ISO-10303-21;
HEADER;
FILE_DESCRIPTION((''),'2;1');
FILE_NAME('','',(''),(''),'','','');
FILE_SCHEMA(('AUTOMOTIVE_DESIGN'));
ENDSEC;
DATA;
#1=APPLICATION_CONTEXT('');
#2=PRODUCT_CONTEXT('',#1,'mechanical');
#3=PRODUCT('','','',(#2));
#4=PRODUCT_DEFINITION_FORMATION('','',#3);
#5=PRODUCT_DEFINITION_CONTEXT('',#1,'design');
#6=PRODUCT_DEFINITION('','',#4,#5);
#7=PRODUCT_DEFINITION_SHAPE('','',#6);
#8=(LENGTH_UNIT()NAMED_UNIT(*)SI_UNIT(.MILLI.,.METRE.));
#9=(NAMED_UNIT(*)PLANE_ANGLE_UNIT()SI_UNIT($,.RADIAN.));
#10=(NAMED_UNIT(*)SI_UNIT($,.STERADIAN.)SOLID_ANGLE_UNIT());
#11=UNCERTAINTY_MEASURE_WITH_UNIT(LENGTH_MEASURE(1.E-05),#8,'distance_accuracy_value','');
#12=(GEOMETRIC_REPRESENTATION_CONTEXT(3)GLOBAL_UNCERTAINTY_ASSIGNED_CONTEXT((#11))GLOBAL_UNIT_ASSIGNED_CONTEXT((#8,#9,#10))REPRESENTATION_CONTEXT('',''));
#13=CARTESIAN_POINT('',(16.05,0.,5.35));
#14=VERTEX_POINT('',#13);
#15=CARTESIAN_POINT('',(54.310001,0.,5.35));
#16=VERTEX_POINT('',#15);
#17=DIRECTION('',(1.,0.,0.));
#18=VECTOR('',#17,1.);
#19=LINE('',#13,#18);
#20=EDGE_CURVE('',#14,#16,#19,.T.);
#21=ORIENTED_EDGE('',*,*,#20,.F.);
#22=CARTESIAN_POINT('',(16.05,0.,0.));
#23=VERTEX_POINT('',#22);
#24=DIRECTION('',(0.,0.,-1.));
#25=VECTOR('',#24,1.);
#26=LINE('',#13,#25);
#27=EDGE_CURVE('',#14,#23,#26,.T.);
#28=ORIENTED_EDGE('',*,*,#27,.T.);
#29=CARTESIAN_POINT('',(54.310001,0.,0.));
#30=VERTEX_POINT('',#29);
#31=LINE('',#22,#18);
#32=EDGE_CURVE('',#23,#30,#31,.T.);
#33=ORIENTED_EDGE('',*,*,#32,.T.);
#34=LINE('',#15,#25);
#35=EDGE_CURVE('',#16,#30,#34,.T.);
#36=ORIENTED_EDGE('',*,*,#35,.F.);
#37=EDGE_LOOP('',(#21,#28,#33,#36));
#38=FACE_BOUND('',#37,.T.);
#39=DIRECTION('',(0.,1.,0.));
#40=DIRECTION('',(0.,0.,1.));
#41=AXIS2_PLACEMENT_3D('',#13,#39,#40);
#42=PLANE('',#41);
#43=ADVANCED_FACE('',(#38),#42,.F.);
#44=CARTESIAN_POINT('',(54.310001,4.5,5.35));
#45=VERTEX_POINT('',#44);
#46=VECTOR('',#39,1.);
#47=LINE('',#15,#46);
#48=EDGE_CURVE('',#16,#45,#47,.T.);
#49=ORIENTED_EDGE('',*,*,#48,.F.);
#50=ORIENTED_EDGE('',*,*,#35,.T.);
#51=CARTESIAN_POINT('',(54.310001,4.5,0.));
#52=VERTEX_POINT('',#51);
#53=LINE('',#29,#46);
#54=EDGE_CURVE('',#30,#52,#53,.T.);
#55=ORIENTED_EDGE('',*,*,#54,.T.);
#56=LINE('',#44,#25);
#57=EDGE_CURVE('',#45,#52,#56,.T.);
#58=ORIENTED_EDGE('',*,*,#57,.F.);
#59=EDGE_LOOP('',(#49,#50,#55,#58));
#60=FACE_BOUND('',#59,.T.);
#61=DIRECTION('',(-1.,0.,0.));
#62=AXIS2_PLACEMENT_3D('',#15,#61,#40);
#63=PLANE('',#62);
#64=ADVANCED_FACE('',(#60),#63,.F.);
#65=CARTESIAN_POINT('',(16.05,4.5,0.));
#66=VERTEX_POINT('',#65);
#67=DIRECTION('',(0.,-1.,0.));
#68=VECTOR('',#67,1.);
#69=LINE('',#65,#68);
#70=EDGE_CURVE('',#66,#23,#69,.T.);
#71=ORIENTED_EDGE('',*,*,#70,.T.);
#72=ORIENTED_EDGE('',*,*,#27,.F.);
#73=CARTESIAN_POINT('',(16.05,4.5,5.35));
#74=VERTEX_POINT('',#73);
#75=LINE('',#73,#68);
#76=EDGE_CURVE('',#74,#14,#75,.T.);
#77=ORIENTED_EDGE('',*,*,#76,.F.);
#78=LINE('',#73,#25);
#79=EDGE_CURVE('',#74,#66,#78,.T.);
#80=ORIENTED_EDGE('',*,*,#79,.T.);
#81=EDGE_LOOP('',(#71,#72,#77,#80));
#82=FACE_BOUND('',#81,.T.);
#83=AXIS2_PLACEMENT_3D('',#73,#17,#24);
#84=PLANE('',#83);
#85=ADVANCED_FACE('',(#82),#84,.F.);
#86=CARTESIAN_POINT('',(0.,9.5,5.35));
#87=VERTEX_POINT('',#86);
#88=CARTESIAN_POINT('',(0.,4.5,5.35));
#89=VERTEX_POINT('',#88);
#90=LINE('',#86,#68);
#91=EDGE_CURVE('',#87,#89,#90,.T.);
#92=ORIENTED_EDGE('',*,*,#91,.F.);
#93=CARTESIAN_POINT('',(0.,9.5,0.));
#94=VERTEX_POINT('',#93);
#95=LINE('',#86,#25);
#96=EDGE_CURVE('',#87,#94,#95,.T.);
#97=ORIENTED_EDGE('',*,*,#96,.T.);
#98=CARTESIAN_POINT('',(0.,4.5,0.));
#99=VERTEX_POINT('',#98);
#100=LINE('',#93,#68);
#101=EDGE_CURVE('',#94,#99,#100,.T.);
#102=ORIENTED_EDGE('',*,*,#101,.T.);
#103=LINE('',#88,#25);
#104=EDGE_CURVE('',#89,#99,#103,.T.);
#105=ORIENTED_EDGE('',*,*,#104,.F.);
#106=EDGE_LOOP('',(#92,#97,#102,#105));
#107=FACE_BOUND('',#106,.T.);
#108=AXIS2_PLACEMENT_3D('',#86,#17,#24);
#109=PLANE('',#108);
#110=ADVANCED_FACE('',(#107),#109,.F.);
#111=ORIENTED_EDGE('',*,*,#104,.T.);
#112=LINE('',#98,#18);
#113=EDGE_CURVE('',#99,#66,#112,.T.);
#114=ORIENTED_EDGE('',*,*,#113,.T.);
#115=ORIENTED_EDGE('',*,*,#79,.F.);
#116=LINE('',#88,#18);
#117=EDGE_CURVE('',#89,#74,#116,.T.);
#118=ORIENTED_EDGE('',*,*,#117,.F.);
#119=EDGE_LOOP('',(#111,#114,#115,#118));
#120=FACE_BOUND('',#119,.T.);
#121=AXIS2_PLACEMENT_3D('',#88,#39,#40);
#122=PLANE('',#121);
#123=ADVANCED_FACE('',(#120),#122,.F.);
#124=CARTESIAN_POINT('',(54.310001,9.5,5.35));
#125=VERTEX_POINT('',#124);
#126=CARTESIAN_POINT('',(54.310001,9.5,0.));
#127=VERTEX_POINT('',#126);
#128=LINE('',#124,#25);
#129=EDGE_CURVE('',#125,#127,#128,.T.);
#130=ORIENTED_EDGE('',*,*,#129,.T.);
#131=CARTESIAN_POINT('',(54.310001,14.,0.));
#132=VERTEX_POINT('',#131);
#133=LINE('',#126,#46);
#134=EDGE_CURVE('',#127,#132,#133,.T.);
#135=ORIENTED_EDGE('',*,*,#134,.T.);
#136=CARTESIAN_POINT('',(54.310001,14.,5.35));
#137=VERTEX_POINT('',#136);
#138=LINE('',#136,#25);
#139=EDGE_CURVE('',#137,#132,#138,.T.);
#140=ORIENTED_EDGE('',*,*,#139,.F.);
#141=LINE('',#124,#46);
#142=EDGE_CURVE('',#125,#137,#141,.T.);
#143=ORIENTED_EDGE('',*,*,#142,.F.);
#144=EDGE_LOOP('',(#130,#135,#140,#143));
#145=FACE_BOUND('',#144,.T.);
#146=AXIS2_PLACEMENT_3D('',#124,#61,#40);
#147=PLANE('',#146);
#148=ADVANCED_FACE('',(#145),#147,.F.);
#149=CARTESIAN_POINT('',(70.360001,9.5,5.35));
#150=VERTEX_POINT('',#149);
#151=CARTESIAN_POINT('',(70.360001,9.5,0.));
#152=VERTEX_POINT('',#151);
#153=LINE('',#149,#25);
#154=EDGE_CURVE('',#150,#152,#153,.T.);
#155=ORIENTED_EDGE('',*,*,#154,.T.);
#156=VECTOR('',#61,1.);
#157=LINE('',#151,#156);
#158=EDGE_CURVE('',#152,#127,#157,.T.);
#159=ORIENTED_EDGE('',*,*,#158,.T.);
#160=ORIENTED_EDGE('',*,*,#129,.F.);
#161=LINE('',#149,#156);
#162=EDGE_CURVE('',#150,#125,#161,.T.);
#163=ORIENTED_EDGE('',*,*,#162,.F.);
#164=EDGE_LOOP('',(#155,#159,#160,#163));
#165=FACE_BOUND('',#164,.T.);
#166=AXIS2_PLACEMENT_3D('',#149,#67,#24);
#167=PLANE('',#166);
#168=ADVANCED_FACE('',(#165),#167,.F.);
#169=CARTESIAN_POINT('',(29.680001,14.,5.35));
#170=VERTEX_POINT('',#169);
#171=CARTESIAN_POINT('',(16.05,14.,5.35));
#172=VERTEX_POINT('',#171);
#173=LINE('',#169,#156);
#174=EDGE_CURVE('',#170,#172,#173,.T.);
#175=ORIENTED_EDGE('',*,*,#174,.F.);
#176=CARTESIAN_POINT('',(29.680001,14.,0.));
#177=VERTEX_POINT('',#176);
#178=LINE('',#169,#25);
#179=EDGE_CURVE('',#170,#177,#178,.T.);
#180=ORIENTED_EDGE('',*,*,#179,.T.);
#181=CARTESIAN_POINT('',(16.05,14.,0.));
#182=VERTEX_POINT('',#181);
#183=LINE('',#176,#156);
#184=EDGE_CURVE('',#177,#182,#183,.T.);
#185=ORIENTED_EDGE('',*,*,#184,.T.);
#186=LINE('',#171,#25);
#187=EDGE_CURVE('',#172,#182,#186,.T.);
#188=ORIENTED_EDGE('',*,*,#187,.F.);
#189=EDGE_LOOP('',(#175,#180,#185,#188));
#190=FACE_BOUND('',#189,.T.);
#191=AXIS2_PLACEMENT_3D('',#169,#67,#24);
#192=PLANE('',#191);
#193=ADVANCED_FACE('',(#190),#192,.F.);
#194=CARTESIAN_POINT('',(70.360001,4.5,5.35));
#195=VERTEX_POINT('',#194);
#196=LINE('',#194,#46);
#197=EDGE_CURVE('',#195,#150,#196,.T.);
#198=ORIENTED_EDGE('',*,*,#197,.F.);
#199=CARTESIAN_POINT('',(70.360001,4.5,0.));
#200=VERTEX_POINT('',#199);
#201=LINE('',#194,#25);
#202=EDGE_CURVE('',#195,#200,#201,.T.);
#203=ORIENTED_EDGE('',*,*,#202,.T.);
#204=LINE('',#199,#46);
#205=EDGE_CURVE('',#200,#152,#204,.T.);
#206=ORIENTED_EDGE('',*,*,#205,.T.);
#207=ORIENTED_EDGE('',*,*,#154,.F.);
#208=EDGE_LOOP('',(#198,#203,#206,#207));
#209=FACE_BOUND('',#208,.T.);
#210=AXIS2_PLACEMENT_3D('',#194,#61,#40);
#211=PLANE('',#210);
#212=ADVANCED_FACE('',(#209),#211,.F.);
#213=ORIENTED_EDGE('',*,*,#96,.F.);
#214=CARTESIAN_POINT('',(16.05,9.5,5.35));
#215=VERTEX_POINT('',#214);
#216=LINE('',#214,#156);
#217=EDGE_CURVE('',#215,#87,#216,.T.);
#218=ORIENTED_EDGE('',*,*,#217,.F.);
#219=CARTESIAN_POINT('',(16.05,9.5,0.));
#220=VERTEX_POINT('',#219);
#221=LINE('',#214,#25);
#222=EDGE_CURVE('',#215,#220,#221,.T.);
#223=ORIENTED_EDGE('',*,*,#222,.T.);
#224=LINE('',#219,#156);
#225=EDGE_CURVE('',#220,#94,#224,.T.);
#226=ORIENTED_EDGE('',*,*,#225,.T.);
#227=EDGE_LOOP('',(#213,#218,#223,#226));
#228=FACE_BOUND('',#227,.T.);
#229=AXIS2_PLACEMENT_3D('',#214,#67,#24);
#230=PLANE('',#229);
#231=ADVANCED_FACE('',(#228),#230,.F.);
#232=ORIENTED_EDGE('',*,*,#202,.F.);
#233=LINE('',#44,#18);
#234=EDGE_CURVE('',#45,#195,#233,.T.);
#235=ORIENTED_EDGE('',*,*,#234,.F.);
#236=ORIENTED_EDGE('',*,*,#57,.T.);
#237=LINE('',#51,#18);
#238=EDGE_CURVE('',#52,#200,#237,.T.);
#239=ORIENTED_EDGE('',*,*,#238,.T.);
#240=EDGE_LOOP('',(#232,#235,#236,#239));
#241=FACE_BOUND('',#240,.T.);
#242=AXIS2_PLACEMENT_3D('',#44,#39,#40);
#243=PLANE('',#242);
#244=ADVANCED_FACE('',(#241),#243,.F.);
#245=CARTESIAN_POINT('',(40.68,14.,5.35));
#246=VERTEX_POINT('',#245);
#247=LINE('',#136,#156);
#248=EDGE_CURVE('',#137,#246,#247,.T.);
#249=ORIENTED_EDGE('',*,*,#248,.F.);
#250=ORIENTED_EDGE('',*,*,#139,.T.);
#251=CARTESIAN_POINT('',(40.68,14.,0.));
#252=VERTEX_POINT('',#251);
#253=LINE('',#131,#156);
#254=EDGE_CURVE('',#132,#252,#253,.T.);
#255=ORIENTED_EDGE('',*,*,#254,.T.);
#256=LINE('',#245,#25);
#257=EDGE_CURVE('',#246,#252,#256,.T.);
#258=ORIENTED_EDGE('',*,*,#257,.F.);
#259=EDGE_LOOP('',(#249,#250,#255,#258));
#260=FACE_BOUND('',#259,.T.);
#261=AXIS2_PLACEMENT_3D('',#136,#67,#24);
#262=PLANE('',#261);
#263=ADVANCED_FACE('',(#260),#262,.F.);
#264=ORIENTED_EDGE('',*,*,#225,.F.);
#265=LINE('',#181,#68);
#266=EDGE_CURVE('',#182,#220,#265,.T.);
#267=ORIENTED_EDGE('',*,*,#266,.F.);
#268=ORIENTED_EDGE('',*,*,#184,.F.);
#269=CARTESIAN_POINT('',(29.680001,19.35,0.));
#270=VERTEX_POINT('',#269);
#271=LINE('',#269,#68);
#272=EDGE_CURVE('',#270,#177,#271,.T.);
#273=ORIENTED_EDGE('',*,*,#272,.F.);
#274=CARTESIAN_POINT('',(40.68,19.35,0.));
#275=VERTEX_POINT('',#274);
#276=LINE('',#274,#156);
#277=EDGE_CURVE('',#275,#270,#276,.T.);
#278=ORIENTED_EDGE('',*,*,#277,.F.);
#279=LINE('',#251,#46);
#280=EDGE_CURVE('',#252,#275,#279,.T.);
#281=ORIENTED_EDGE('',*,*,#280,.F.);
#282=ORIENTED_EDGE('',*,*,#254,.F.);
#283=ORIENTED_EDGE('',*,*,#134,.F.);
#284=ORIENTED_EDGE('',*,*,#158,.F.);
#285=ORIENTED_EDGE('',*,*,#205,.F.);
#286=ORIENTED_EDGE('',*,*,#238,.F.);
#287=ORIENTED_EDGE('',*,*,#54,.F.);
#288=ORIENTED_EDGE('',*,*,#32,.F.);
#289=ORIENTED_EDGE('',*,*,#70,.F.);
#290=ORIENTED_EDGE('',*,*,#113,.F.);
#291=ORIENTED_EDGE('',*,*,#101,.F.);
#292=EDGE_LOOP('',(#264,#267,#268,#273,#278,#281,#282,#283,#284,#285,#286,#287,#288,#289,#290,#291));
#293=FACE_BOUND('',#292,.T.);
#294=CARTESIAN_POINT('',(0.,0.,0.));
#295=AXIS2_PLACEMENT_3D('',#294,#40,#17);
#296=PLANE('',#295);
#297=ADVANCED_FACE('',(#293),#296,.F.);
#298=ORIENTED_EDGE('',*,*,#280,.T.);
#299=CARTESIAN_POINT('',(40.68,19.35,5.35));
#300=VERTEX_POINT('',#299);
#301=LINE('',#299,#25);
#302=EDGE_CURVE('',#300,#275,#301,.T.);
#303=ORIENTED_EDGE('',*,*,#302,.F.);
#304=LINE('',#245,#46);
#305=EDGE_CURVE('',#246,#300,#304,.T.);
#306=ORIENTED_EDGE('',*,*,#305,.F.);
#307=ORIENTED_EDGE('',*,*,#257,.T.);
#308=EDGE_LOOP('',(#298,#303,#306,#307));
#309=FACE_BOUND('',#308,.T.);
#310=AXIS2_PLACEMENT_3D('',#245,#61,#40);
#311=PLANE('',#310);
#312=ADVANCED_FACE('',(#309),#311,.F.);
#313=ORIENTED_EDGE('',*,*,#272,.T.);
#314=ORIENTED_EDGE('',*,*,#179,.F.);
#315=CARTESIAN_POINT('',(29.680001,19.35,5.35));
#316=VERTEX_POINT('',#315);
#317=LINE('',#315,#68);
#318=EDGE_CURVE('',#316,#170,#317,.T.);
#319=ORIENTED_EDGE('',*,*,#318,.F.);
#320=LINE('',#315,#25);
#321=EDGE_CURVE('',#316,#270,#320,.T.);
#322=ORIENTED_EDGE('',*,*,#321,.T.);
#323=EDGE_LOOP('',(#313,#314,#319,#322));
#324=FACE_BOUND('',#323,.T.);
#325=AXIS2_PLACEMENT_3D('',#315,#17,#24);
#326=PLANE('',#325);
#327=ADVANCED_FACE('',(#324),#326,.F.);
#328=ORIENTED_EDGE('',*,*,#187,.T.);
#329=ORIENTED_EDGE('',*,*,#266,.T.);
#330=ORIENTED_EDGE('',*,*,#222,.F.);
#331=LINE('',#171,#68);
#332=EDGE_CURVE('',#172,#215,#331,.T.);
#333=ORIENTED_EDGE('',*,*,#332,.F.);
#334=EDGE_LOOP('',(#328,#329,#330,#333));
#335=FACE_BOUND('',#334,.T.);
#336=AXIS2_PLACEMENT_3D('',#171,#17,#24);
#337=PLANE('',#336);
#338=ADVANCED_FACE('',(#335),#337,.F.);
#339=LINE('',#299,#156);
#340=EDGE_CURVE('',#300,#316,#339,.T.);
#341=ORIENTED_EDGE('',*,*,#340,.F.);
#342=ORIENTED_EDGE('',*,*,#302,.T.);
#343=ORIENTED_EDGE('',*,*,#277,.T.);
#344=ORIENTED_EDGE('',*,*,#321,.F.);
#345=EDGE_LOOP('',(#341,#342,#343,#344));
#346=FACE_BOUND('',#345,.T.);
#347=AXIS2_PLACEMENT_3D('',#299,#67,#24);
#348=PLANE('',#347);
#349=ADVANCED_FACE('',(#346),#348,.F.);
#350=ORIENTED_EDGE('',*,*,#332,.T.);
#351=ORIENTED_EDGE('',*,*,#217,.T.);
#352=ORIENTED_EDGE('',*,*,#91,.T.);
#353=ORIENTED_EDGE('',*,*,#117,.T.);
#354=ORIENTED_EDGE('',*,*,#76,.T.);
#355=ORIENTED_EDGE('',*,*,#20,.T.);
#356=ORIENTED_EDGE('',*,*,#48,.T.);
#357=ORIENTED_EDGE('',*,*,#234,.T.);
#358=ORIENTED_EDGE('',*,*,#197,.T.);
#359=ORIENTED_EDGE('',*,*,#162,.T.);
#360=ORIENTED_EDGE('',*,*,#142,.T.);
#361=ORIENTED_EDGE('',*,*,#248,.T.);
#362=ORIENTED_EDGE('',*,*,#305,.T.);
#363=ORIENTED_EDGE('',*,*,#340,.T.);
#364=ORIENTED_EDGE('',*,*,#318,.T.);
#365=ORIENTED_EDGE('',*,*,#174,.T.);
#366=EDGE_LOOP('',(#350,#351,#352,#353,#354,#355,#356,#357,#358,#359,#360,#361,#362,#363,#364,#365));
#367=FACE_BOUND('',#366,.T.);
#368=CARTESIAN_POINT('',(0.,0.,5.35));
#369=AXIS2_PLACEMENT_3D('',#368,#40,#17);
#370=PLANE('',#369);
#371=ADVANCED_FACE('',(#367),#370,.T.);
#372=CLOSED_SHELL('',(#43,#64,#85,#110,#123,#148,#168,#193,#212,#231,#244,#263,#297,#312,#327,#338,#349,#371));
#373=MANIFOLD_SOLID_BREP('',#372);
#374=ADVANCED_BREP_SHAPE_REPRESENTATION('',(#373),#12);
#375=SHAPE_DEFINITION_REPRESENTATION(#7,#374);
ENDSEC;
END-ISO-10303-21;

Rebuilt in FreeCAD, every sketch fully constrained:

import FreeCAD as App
import Part
import Sketcher

V = App.Vector

doc = App.newDocument("Part")
params = doc.addObject("Spreadsheet::Sheet", "Params")
for row, (alias, value) in enumerate([
    ("sketch1_width", "11 mm"),
    ("sketch1_height", "5 mm"),
    ("sketch1_height2", "4.500001 mm"),
    ("sketch1_width2", "13.630001 mm"),
    ("sketch1_width3", "16.05 mm"),
    ("pad1_length", "5.35 mm"),
], start=1):
    params.set(f"A{row}", alias)
    params.set(f"B{row}", "=" + value)
    params.setAlias(f"B{row}", alias)

body = doc.addObject("PartDesign::Body", "Body")

sketch1 = doc.addObject("Sketcher::SketchObject", "Sketch")
body.addObject(sketch1)
sketch1.AttachmentSupport = (doc.XY_Plane, [""])
sketch1.MapMode = "FlatFace"
sketch1.addGeometry(Part.LineSegment(V(29.7, 19.3, 0), V(29.7, 14, 0)), False)
sketch1.addGeometry(Part.LineSegment(V(29.7, 14, 0), V(16, 14, 0)), False)
sketch1.addGeometry(Part.LineSegment(V(16, 14, 0), V(16, 9.5, 0)), False)
sketch1.addGeometry(Part.LineSegment(V(16, 9.5, 0), V(0, 9.5, 0)), False)
sketch1.addGeometry(Part.LineSegment(V(0, 9.5, 0), V(0, 4.5, 0)), False)
sketch1.addGeometry(Part.LineSegment(V(0, 4.5, 0), V(16, 4.5, 0)), False)
sketch1.addGeometry(Part.LineSegment(V(16, 4.5, 0), V(16, 0, 0)), False)
sketch1.addGeometry(Part.LineSegment(V(16, 0, 0), V(54.3, 0, 0)), False)
sketch1.addGeometry(Part.LineSegment(V(54.3, 0, 0), V(54.3, 4.5, 0)), False)
sketch1.addGeometry(Part.LineSegment(V(54.3, 4.5, 0), V(70.4, 4.5, 0)), False)
sketch1.addGeometry(Part.LineSegment(V(70.4, 4.5, 0), V(70.4, 9.5, 0)), False)
sketch1.addGeometry(Part.LineSegment(V(70.4, 9.5, 0), V(54.3, 9.5, 0)), False)
sketch1.addGeometry(Part.LineSegment(V(54.3, 9.5, 0), V(54.3, 14, 0)), False)
sketch1.addGeometry(Part.LineSegment(V(54.3, 14, 0), V(40.7, 14, 0)), False)
sketch1.addGeometry(Part.LineSegment(V(40.7, 14, 0), V(40.7, 19.3, 0)), False)
sketch1.addGeometry(Part.LineSegment(V(40.7, 19.3, 0), V(29.7, 19.3, 0)), False)
sketch1.addConstraint(Sketcher.Constraint("Coincident", 0, 2, 1, 1))
sketch1.addConstraint(Sketcher.Constraint("Coincident", 1, 2, 2, 1))
sketch1.addConstraint(Sketcher.Constraint("Coincident", 2, 2, 3, 1))
sketch1.addConstraint(Sketcher.Constraint("Coincident", 3, 2, 4, 1))
sketch1.addConstraint(Sketcher.Constraint("Coincident", 4, 2, 5, 1))
sketch1.addConstraint(Sketcher.Constraint("Coincident", 5, 2, 6, 1))
sketch1.addConstraint(Sketcher.Constraint("Coincident", 6, 2, 7, 1))
sketch1.addConstraint(Sketcher.Constraint("Coincident", 7, 2, 8, 1))
sketch1.addConstraint(Sketcher.Constraint("Coincident", 8, 2, 9, 1))
sketch1.addConstraint(Sketcher.Constraint("Coincident", 9, 2, 10, 1))
sketch1.addConstraint(Sketcher.Constraint("Coincident", 10, 2, 11, 1))
sketch1.addConstraint(Sketcher.Constraint("Coincident", 11, 2, 12, 1))
sketch1.addConstraint(Sketcher.Constraint("Coincident", 12, 2, 13, 1))
sketch1.addConstraint(Sketcher.Constraint("Coincident", 13, 2, 14, 1))
sketch1.addConstraint(Sketcher.Constraint("Coincident", 14, 2, 15, 1))
sketch1.addConstraint(Sketcher.Constraint("Coincident", 15, 2, 0, 1))
sketch1.addConstraint(Sketcher.Constraint("Vertical", 0))
sketch1.addConstraint(Sketcher.Constraint("Horizontal", 1))
sketch1.addConstraint(Sketcher.Constraint("Vertical", 2))
sketch1.addConstraint(Sketcher.Constraint("Horizontal", 3))
sketch1.addConstraint(Sketcher.Constraint("Vertical", 4))
sketch1.addConstraint(Sketcher.Constraint("Horizontal", 5))
sketch1.addConstraint(Sketcher.Constraint("Vertical", 6))
sketch1.addConstraint(Sketcher.Constraint("Horizontal", 7))
sketch1.addConstraint(Sketcher.Constraint("Vertical", 8))
sketch1.addConstraint(Sketcher.Constraint("Horizontal", 9))
sketch1.addConstraint(Sketcher.Constraint("Vertical", 10))
sketch1.addConstraint(Sketcher.Constraint("Horizontal", 11))
sketch1.addConstraint(Sketcher.Constraint("Vertical", 12))
sketch1.addConstraint(Sketcher.Constraint("Horizontal", 13))
sketch1.addConstraint(Sketcher.Constraint("Vertical", 14))
sketch1.addConstraint(Sketcher.Constraint("Horizontal", 15))
sketch1.addConstraint(Sketcher.Constraint("PointOnObject", 3, 2, -2))
sketch1.addConstraint(Sketcher.Constraint("PointOnObject", 6, 2, -1))
sketch1.addConstraint(Sketcher.Constraint("Horizontal", 5, 2, 8, 2))
sketch1.addConstraint(Sketcher.Constraint("Horizontal", 3, 2, 10, 2))
sketch1.addConstraint(Sketcher.Constraint("Horizontal", 1, 2, 12, 2))
sketch1.addConstraint(Sketcher.Constraint("Vertical", 2, 2, 5, 2))
sketch1.addConstraint(Sketcher.Constraint("Vertical", 8, 2, 11, 2))
sketch1.addConstraint(Sketcher.Constraint("Equal", 5, 9))
sketch1.addConstraint(Sketcher.Constraint("Equal", 1, 13))
sketch1.addConstraint(Sketcher.Constraint("Equal", 2, 6))
sketch1.addConstraint(Sketcher.Constraint("DistanceX", 15, 2, 15, 1, 11.0))
sketch1.addConstraint(Sketcher.Constraint("DistanceY", 4, 2, 4, 1, 5.0))
sketch1.addConstraint(Sketcher.Constraint("DistanceY", 2, 2, 2, 1, 4.500001))
sketch1.addConstraint(Sketcher.Constraint("DistanceX", 1, 2, 1, 1, 13.630001))
sketch1.addConstraint(Sketcher.Constraint("DistanceX", 3, 2, 3, 1, 16.05))
sketch1.addConstraint(Sketcher.Constraint("DistanceY", 0, 2, 0, 1, 5.349999))
sketch1.setExpression("Constraints[42]", "Params.sketch1_width")
sketch1.setExpression("Constraints[43]", "Params.sketch1_height")
sketch1.setExpression("Constraints[44]", "Params.sketch1_height2")
sketch1.setExpression("Constraints[45]", "Params.sketch1_width2")
sketch1.setExpression("Constraints[46]", "Params.sketch1_width3")
pad1 = doc.addObject("PartDesign::Pad", "Pad")
body.addObject(pad1)
pad1.Profile = sketch1
pad1.setExpression("Length", "Params.pad1_length")

doc.recompute()
